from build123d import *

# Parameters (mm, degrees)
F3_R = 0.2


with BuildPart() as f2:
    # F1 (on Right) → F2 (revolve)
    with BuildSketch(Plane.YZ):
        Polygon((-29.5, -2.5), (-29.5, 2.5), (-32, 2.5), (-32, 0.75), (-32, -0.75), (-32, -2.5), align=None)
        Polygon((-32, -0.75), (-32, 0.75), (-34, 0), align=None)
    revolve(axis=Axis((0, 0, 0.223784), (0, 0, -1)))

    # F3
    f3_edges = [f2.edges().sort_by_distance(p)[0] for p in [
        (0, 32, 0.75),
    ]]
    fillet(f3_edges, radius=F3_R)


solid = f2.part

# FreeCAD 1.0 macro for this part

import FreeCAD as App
import Part
import Sketcher
from FreeCAD import Vector
Q = App.Units.Quantity


def edges_at(feature, points):
    """Names of the edges that pass closest to the given points."""
    edges = feature.Shape.Edges
    near = lambda p: min(range(len(edges)), key=lambda i: edges[i].distToShape(Part.Vertex(*p))[0])
    return sorted({f"Edge{near(p) + 1}" for p in points})

doc = App.newDocument("Part")
body = doc.addObject("PartDesign::Body", "Body")

# Sketch on YZ plane
sketch1 = body.newObject("Sketcher::SketchObject", "Sketch")
sketch1.AttachmentSupport = (doc.getObject("YZ_Plane"), [""])
sketch1.MapMode = "FlatFace"
sketch1.addGeometry(Part.LineSegment(Vector(-29.5, -2.5, 0), Vector(-29.5, 2.5, 0)), False)
sketch1.addGeometry(Part.LineSegment(Vector(-29.5, 2.5, 0), Vector(-32, 2.5, 0)), False)
sketch1.addGeometry(Part.LineSegment(Vector(-32, 2.5, 0), Vector(-32, 0.8, 0)), False)
sketch1.addGeometry(Part.LineSegment(Vector(-32, 0.8, 0), Vector(-34, 0, 0)), False)
sketch1.addGeometry(Part.LineSegment(Vector(-34, 0, 0), Vector(-32, -0.8, 0)), False)
sketch1.addGeometry(Part.LineSegment(Vector(-32, -0.8, 0), Vector(-32, -2.5, 0)), False)
sketch1.addGeometry(Part.LineSegment(Vector(-32, -2.5, 0), Vector(-29.5, -2.5, 0)), False)
sketch1.addConstraint(Sketcher.Constraint("Coincident", 0, 2, 1, 1))
sketch1.addConstraint(Sketcher.Constraint("Coincident", 1, 2, 2, 1))
sketch1.addConstraint(Sketcher.Constraint("Coincident", 2, 2, 3, 1))
sketch1.addConstraint(Sketcher.Constraint("Coincident", 3, 2, 4, 1))
sketch1.addConstraint(Sketcher.Constraint("Coincident", 4, 2, 5, 1))
sketch1.addConstraint(Sketcher.Constraint("Coincident", 5, 2, 6, 1))
sketch1.addConstraint(Sketcher.Constraint("Coincident", 6, 2, 0, 1))
sketch1.addConstraint(Sketcher.Constraint("Vertical", 0))
sketch1.addConstraint(Sketcher.Constraint("Horizontal", 1))
sketch1.addConstraint(Sketcher.Constraint("Vertical", 2))
sketch1.addConstraint(Sketcher.Constraint("Vertical", 5))
sketch1.addConstraint(Sketcher.Constraint("Horizontal", 6))
sketch1.addConstraint(Sketcher.Constraint("Symmetric", 2, 2, 4, 2, -1))
sketch1.addConstraint(Sketcher.Constraint("PointOnObject", 3, 2, -1))
sketch1.addConstraint(Sketcher.Constraint("Equal", 2, 5))
sketch1.addConstraint(Sketcher.Constraint("DistanceY", 0, 1, 0, 2, Q("5 mm")))
sketch1.addConstraint(Sketcher.Constraint("DistanceX", 1, 2, 1, 1, Q("2.5 mm")))
sketch1.addConstraint(Sketcher.Constraint("DistanceX", 1, 2, -1, 1, Q("32 mm")))
sketch1.addConstraint(Sketcher.Constraint("DistanceX", 3, 2, -1, 1, Q("34 mm")))
sketch1.addConstraint(Sketcher.Constraint("DistanceY", 2, 2, 2, 1, Q("1.75 mm")))
revolution = body.newObject("PartDesign::Revolution", "Revolution")
revolution.Profile = sketch1
revolution.ReferenceAxis = (sketch1, ["V_Axis"])
revolution.Angle = 360
doc.recompute()

fillet = body.newObject("PartDesign::Fillet", "Fillet")
fillet.Base = (revolution, edges_at(revolution, [(0, 32, 0.75)]))
fillet.Radius = 0.2

doc.recompute()
